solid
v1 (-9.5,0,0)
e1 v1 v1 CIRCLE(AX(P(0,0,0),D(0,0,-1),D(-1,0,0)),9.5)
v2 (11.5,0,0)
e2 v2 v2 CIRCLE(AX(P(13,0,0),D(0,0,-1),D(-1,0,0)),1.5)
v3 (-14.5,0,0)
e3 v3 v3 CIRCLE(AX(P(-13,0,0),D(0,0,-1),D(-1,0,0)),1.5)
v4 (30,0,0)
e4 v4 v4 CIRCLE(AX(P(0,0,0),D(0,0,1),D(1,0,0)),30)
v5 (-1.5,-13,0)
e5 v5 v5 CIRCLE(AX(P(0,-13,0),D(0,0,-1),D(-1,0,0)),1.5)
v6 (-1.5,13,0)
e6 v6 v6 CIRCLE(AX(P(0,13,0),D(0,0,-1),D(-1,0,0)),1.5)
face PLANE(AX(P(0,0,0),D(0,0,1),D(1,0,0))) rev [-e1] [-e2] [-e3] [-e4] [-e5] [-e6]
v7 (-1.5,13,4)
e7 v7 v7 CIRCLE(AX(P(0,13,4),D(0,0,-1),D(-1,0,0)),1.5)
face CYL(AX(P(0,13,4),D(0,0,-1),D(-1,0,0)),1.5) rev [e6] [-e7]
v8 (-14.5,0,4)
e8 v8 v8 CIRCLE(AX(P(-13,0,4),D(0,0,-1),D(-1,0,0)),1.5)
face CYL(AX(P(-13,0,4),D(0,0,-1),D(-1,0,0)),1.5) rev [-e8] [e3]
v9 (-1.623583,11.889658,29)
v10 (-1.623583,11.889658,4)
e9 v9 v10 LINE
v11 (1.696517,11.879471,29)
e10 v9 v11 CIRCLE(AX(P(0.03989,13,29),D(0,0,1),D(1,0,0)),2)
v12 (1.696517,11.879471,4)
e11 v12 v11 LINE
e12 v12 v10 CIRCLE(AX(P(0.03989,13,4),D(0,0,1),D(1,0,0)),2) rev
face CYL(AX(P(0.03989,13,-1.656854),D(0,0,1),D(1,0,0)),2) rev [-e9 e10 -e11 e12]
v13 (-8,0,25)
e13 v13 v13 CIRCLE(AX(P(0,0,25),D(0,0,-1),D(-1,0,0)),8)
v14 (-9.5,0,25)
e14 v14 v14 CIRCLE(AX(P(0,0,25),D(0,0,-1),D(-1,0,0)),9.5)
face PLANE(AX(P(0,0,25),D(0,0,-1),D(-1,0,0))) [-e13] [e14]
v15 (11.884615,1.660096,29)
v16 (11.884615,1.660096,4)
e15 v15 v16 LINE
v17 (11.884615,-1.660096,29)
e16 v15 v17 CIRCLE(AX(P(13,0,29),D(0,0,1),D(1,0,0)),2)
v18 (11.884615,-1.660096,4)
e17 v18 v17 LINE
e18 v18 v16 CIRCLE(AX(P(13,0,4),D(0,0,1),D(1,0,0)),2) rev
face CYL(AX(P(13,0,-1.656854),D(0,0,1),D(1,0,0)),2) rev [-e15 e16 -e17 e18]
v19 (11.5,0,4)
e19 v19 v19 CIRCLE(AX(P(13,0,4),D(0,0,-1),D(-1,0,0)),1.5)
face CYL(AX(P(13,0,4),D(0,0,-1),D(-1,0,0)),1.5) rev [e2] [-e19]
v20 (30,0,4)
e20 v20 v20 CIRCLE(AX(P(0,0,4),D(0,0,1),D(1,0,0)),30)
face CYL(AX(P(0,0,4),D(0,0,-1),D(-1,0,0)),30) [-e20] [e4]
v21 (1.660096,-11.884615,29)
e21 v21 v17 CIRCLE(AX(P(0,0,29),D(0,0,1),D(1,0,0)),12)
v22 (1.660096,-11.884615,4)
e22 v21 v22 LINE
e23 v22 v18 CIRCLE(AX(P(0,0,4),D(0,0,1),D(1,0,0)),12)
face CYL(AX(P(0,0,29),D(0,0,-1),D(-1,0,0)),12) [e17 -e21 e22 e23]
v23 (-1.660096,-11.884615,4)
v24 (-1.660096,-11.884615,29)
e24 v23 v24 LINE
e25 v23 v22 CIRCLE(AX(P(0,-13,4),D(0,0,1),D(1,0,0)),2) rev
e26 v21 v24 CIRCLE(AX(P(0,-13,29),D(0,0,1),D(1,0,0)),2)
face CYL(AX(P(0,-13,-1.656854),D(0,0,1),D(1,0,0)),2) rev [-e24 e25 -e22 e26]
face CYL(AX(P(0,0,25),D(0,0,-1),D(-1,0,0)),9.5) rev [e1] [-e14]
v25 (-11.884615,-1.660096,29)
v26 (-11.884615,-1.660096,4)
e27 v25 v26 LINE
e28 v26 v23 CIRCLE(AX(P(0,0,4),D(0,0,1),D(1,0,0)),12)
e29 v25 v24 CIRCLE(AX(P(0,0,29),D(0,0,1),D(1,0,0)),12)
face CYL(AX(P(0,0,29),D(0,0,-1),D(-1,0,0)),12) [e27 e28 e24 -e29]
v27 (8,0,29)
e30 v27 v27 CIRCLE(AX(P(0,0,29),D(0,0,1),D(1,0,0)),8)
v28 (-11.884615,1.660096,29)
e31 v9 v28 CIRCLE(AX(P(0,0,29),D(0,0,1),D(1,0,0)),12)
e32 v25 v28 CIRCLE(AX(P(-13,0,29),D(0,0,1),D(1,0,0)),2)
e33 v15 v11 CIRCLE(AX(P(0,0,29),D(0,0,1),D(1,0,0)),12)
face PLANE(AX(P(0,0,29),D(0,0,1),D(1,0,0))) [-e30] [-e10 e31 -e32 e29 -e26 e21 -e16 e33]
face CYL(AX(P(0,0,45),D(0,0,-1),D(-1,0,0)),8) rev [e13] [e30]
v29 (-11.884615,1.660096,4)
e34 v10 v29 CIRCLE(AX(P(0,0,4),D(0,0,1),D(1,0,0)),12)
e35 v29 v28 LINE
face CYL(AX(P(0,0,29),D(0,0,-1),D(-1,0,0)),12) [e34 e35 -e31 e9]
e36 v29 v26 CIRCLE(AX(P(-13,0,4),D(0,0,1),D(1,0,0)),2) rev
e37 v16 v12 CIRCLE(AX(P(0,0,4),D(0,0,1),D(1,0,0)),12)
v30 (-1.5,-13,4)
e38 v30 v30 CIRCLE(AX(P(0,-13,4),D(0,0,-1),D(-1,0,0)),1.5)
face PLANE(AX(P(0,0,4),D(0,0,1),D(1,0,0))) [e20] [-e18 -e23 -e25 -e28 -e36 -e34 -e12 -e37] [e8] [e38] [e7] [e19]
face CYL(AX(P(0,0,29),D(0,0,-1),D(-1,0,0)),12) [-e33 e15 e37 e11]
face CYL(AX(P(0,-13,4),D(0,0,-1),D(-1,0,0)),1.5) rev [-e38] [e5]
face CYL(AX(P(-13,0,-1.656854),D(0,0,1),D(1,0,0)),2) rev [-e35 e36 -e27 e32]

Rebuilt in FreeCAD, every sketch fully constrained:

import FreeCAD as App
import Part
import Sketcher

V = App.Vector
Q = App.Units.Quantity

doc = App.newDocument("Part")
params = doc.addObject("Spreadsheet::Sheet", "Params")
for row, (alias, value) in enumerate([
    ("sketch1_diameter", "60 mm"),
    ("pad1_length", "4 mm"),
    ("sketch2_diameter", "24 mm"),
    ("pad2_length", "25 mm"),
    ("sketch3_diameter", "19 mm"),
    ("pocket1_length", "25 mm"),
    ("sketch4_diameter", "16 mm"),
    ("pocket2_length", "20 mm"),
    ("sketch5_diameter", "3 mm"),
    ("pocket3_length", "4 mm"),
    ("sketch6_diameter", "4 mm"),
    ("pocket4_length", "25 mm"),
], start=1):
    params.set(f"A{row}", alias)
    params.set(f"B{row}", "=" + value)
    params.setAlias(f"B{row}", alias)

body = doc.addObject("PartDesign::Body", "Body")

# Sketch on XY plane
sketch1 = doc.addObject("Sketcher::SketchObject", "Sketch")
body.addObject(sketch1)
sketch1.AttachmentSupport = (doc.XY_Plane, [""])
sketch1.MapMode = "FlatFace"
sketch1.addGeometry(Part.Circle(V(0, 0, 0), V(0, 0, 1), 30), False)
sketch1.addConstraint(Sketcher.Constraint("Coincident", 0, 3, -1, 1))
sketch1.addConstraint(Sketcher.Constraint("Diameter", 0, Q("60 mm")))
sketch1.setExpression("Constraints[1]", "Params.sketch1_diameter")
pad1 = doc.addObject("PartDesign::Pad", "Pad")
body.addObject(pad1)
pad1.Profile = sketch1
pad1.setExpression("Length", "Params.pad1_length")

# Sketch on XY plane
sketch2 = doc.addObject("Sketcher::SketchObject", "Sketch001")
body.addObject(sketch2)
sketch2.AttachmentSupport = (doc.XY_Plane, [""])
sketch2.MapMode = "FlatFace"
sketch2.AttachmentOffset = App.Placement(V(0, 0, 4), App.Rotation())
sketch2.addGeometry(Part.Circle(V(0, 0, 0), V(0, 0, 1), 12), False)
sketch2.addConstraint(Sketcher.Constraint("Coincident", 0, 3, -1, 1))
sketch2.addConstraint(Sketcher.Constraint("Diameter", 0, Q("24 mm")))
sketch2.setExpression("Constraints[1]", "Params.sketch2_diameter")
pad2 = doc.addObject("PartDesign::Pad", "Pad001")
body.addObject(pad2)
pad2.Profile = sketch2
pad2.setExpression("Length", "Params.pad2_length")

# Sketch on XY plane
sketch3 = doc.addObject("Sketcher::SketchObject", "Sketch002")
body.addObject(sketch3)
sketch3.AttachmentSupport = (doc.XY_Plane, [""])
sketch3.MapMode = "FlatFace"
sketch3.addGeometry(Part.Circle(V(0, 0, 0), V(0, 0, 1), 10), False)
sketch3.addConstraint(Sketcher.Constraint("Coincident", 0, 3, -1, 1))
sketch3.addConstraint(Sketcher.Constraint("Diameter", 0, Q("19 mm")))
sketch3.setExpression("Constraints[1]", "Params.sketch3_diameter")
pocket1 = doc.addObject("PartDesign::Pocket", "Pocket")
body.addObject(pocket1)
pocket1.Profile = sketch3
pocket1.setExpression("Length", "Params.pocket1_length")
pocket1.Reversed = True

# Sketch on XY plane
sketch4 = doc.addObject("Sketcher::SketchObject", "Sketch003")
body.addObject(sketch4)
sketch4.AttachmentSupport = (doc.XY_Plane, [""])
sketch4.MapMode = "FlatFace"
sketch4.AttachmentOffset = App.Placement(V(0, 0, 25), App.Rotation())
sketch4.addGeometry(Part.Circle(V(0, 0, 0), V(0, 0, 1), 8), False)
sketch4.addConstraint(Sketcher.Constraint("Coincident", 0, 3, -1, 1))
sketch4.addConstraint(Sketcher.Constraint("Diameter", 0, Q("16 mm")))
sketch4.setExpression("Constraints[1]", "Params.sketch4_diameter")
pocket2 = doc.addObject("PartDesign::Pocket", "Pocket001")
body.addObject(pocket2)
pocket2.Profile = sketch4
pocket2.setExpression("Length", "Params.pocket2_length")
pocket2.Reversed = True

# Sketch on XY plane
sketch5 = doc.addObject("Sketcher::SketchObject", "Sketch004")
body.addObject(sketch5)
sketch5.AttachmentSupport = (doc.XY_Plane, [""])
sketch5.MapMode = "FlatFace"
sketch5.addGeometry(Part.Circle(V(0, 13, 0), V(0, 0, 1), 1.5), False)
sketch5.addGeometry(Part.Circle(V(-13, 0, 0), V(0, 0, 1), 1.5), False)
sketch5.addGeometry(Part.Circle(V(0, -13, 0), V(0, 0, 1), 1.5), False)
sketch5.addGeometry(Part.Circle(V(13, 0, 0), V(0, 0, 1), 1.5), False)
sketch5.addConstraint(Sketcher.Constraint("Equal", 0, 1))
sketch5.addConstraint(Sketcher.Constraint("Equal", 1, 2))
sketch5.addConstraint(Sketcher.Constraint("Equal", 2, 3))
sketch5.addConstraint(Sketcher.Constraint("Symmetric", 0, 3, 2, 3, -1, 1))
sketch5.addConstraint(Sketcher.Constraint("Symmetric", 1, 3, 3, 3, -1, 1))
sketch5.addConstraint(Sketcher.Constraint("PointOnObject", 0, 3, -2))
sketch5.addConstraint(Sketcher.Constraint("PointOnObject", 1, 3, -1))
sketch5.addConstraint(Sketcher.Constraint("Diameter", 0, Q("3 mm")))
sketch5.addConstraint(Sketcher.Constraint("DistanceY", -1, 1, 0, 3, Q("13 mm")))
sketch5.addConstraint(Sketcher.Constraint("DistanceX", 1, 3, -1, 1, Q("13 mm")))
sketch5.setExpression("Constraints[7]", "Params.sketch5_diameter")
pocket3 = doc.addObject("PartDesign::Pocket", "Pocket002")
body.addObject(pocket3)
pocket3.Profile = sketch5
pocket3.setExpression("Length", "Params.pocket3_length")
pocket3.Reversed = True

# Sketch on XY plane
sketch6 = doc.addObject("Sketcher::SketchObject", "Sketch005")
body.addObject(sketch6)
sketch6.AttachmentSupport = (doc.XY_Plane, [""])
sketch6.MapMode = "FlatFace"
sketch6.AttachmentOffset = App.Placement(V(0, 0, 29), App.Rotation())
sketch6.addGeometry(Part.Circle(V(0, 13, 0), V(0, 0, 1), 2), False)
sketch6.addGeometry(Part.Circle(V(0, -13, 0), V(0, 0, 1), 2), False)
sketch6.addGeometry(Part.Circle(V(13, 0, 0), V(0, 0, 1), 2), False)
sketch6.addGeometry(Part.Circle(V(-13, 0, 0), V(0, 0, 1), 2), False)
sketch6.addConstraint(Sketcher.Constraint("Equal", 0, 1))
sketch6.addConstraint(Sketcher.Constraint("Equal", 1, 2))
sketch6.addConstraint(Sketcher.Constraint("Equal", 2, 3))
sketch6.addConstraint(Sketcher.Constraint("Symmetric", 2, 3, 3, 3, -1, 1))
sketch6.addConstraint(Sketcher.Constraint("PointOnObject", 1, 3, -2))
sketch6.addConstraint(Sketcher.Constraint("PointOnObject", 2, 3, -1))
sketch6.addConstraint(Sketcher.Constraint("Diameter", 0, Q("4 mm")))
sketch6.addConstraint(Sketcher.Constraint("DistanceY", -1, 1, 0, 3, Q("13 mm")))
sketch6.addConstraint(Sketcher.Constraint("DistanceY", 1, 3, -1, 1, Q("13 mm")))
sketch6.addConstraint(Sketcher.Constraint("DistanceX", -1, 1, 2, 3, Q("13 mm")))
sketch6.addConstraint(Sketcher.Constraint("DistanceX", -1, 1, 0, 3, Q("0.03989 mm")))
sketch6.setExpression("Constraints[6]", "Params.sketch6_diameter")
pocket4 = doc.addObject("PartDesign::Pocket", "Pocket003")
body.addObject(pocket4)
pocket4.Profile = sketch6
pocket4.setExpression("Length", "Params.pocket4_length")

doc.recompute()
